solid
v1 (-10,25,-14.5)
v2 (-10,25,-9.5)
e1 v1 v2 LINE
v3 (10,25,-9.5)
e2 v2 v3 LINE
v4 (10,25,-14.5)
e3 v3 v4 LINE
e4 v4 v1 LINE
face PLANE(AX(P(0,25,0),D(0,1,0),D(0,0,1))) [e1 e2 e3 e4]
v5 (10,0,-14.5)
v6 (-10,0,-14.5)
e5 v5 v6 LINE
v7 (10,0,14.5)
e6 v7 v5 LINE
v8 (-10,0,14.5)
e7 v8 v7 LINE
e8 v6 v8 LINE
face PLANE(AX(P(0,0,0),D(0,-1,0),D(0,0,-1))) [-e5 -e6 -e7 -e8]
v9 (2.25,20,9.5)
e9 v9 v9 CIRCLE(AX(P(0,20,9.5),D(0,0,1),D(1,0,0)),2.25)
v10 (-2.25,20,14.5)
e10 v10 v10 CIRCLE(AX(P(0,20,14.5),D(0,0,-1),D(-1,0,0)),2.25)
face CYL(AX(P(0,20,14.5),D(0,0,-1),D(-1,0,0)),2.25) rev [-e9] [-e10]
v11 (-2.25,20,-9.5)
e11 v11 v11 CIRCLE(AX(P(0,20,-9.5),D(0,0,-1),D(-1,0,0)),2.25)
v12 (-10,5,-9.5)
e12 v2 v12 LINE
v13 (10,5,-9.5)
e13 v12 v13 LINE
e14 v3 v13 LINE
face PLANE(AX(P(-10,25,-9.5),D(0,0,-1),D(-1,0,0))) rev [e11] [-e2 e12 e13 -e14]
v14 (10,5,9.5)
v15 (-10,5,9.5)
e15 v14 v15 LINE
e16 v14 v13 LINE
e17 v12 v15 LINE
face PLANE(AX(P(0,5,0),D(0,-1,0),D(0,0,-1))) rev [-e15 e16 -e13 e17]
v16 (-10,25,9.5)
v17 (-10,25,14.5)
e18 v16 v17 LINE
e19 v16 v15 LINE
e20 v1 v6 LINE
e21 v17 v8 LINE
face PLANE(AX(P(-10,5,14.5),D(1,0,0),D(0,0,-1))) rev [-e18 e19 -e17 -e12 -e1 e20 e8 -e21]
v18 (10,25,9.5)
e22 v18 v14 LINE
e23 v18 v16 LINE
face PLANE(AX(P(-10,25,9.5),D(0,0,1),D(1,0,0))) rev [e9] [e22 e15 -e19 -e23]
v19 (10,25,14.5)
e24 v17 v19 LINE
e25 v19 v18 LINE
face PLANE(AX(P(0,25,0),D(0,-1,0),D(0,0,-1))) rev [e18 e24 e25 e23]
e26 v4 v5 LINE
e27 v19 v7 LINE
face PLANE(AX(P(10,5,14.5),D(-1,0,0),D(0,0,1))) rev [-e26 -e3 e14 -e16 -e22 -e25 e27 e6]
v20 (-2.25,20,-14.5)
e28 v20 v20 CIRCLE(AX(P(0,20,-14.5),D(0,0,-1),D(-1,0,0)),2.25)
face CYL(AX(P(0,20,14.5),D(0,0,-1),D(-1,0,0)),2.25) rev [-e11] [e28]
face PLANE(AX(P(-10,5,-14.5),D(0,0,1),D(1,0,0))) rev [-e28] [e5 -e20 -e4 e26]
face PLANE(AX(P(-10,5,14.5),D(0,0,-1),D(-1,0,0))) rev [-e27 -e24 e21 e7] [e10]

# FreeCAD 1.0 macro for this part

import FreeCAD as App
import Part
import Sketcher
from FreeCAD import Vector
Q = App.Units.Quantity

doc = App.newDocument("Part")
body = doc.addObject("PartDesign::Body", "Body")

# Sketch on XZ plane
sketch1 = body.newObject("Sketcher::SketchObject", "Sketch")
sketch1.AttachmentSupport = (doc.getObject("XZ_Plane"), [""])
sketch1.MapMode = "FlatFace"
sketch1.addGeometry([
    Part.LineSegment(Vector(-10, -14, 0), Vector(-10, 14, 0)),
    Part.LineSegment(Vector(-10, 14, 0), Vector(10, 14, 0)),
    Part.LineSegment(Vector(10, 14, 0), Vector(10, -14, 0)),
    Part.LineSegment(Vector(10, -14, 0), Vector(-10, -14, 0)),
], False)
sketch1.addConstraint([
    Sketcher.Constraint("Coincident", 0, 2, 1, 1),
    Sketcher.Constraint("Coincident", 1, 2, 2, 1),
    Sketcher.Constraint("Coincident", 2, 2, 3, 1),
    Sketcher.Constraint("Coincident", 3, 2, 0, 1),
    Sketcher.Constraint("Vertical", 0),
    Sketcher.Constraint("Horizontal", 1),
    Sketcher.Constraint("Vertical", 2),
    Sketcher.Constraint("Horizontal", 3),
    Sketcher.Constraint("Symmetric", 0, 2, 2, 2, -1, 1),
    Sketcher.Constraint("DistanceX", 1, 1, 1, 2, Q("20 mm")),
    Sketcher.Constraint("DistanceY", 0, 1, 0, 2, Q("29 mm")),
])
pad1 = body.newObject("PartDesign::Pad", "Pad")
pad1.Profile = sketch1
pad1.Length = 5
pad1.Reversed = True

# Sketch on XZ plane
sketch2 = body.newObject("Sketcher::SketchObject", "Sketch001")
sketch2.AttachmentSupport = (doc.getObject("XZ_Plane"), [""])
sketch2.MapMode = "FlatFace"
sketch2.AttachmentOffset = App.Placement(Vector(0, 0, -5), App.Rotation())
sketch2.addGeometry([
    Part.LineSegment(Vector(-10, -14, 0), Vector(-10, -10, 0)),  # 0
    Part.LineSegment(Vector(-10, -10, 0), Vector(10, -10, 0)),  # 1
    Part.LineSegment(Vector(10, -10, 0), Vector(10, -14, 0)),  # 2
    Part.LineSegment(Vector(10, -14, 0), Vector(-10, -14, 0)),  # 3
    Part.LineSegment(Vector(-10, 10, 0), Vector(-10, 14, 0)),  # 4
    Part.LineSegment(Vector(-10, 14, 0), Vector(10, 14, 0)),  # 5
    Part.LineSegment(Vector(10, 14, 0), Vector(10, 10, 0)),  # 6
    Part.LineSegment(Vector(10, 10, 0), Vector(-10, 10, 0)),  # 7
], False)
sketch2.addConstraint([
    Sketcher.Constraint("Coincident", 0, 2, 1, 1),
    Sketcher.Constraint("Coincident", 1, 2, 2, 1),
    Sketcher.Constraint("Coincident", 2, 2, 3, 1),
    Sketcher.Constraint("Coincident", 3, 2, 0, 1),
    Sketcher.Constraint("Coincident", 4, 2, 5, 1),
    Sketcher.Constraint("Coincident", 5, 2, 6, 1),
    Sketcher.Constraint("Coincident", 6, 2, 7, 1),
    Sketcher.Constraint("Coincident", 7, 2, 4, 1),
    Sketcher.Constraint("Vertical", 0),
    Sketcher.Constraint("Horizontal", 1),
    Sketcher.Constraint("Vertical", 2),
    Sketcher.Constraint("Horizontal", 3),
    Sketcher.Constraint("Vertical", 4),
    Sketcher.Constraint("Horizontal", 5),
    Sketcher.Constraint("Vertical", 6),
    Sketcher.Constraint("Horizontal", 7),
    Sketcher.Constraint("Symmetric", 2, 2, 4, 2, -1, 1),
    Sketcher.Constraint("Symmetric", 0, 2, 6, 2, -1, 1),
    Sketcher.Constraint("Vertical", 3, 2, 4, 2),
    Sketcher.Constraint("DistanceX", 1, 1, 1, 2, Q("20 mm")),
    Sketcher.Constraint("DistanceY", 0, 1, 0, 2, Q("5 mm")),
    Sketcher.Constraint("DistanceY", 0, 2, 4, 2, Q("24 mm")),
])
pad2 = body.newObject("PartDesign::Pad", "Pad001")
pad2.Profile = sketch2
pad2.Length = 20
pad2.Reversed = True

# Sketch on XY plane
sketch3 = body.newObject("Sketcher::SketchObject", "Sketch002")
sketch3.AttachmentSupport = (doc.getObject("XY_Plane"), [""])
sketch3.MapMode = "FlatFace"
sketch3.AttachmentOffset = App.Placement(Vector(0, 0, -14.5), App.Rotation())
sketch3.addGeometry(Part.Circle(Vector(0, 20, 0), Vector(0, 0, 1), 2.2), False)
sketch3.addConstraint([
    Sketcher.Constraint("PointOnObject", 0, 3, -2),
    Sketcher.Constraint("Diameter", 0, Q("4.5 mm")),
    Sketcher.Constraint("DistanceY", -1, 1, 0, 3, Q("20 mm")),
])
pocket1 = body.newObject("PartDesign::Pocket", "Pocket")
pocket1.Profile = sketch3
pocket1.Type = "ThroughAll"
pocket1.Reversed = True

doc.recompute()
